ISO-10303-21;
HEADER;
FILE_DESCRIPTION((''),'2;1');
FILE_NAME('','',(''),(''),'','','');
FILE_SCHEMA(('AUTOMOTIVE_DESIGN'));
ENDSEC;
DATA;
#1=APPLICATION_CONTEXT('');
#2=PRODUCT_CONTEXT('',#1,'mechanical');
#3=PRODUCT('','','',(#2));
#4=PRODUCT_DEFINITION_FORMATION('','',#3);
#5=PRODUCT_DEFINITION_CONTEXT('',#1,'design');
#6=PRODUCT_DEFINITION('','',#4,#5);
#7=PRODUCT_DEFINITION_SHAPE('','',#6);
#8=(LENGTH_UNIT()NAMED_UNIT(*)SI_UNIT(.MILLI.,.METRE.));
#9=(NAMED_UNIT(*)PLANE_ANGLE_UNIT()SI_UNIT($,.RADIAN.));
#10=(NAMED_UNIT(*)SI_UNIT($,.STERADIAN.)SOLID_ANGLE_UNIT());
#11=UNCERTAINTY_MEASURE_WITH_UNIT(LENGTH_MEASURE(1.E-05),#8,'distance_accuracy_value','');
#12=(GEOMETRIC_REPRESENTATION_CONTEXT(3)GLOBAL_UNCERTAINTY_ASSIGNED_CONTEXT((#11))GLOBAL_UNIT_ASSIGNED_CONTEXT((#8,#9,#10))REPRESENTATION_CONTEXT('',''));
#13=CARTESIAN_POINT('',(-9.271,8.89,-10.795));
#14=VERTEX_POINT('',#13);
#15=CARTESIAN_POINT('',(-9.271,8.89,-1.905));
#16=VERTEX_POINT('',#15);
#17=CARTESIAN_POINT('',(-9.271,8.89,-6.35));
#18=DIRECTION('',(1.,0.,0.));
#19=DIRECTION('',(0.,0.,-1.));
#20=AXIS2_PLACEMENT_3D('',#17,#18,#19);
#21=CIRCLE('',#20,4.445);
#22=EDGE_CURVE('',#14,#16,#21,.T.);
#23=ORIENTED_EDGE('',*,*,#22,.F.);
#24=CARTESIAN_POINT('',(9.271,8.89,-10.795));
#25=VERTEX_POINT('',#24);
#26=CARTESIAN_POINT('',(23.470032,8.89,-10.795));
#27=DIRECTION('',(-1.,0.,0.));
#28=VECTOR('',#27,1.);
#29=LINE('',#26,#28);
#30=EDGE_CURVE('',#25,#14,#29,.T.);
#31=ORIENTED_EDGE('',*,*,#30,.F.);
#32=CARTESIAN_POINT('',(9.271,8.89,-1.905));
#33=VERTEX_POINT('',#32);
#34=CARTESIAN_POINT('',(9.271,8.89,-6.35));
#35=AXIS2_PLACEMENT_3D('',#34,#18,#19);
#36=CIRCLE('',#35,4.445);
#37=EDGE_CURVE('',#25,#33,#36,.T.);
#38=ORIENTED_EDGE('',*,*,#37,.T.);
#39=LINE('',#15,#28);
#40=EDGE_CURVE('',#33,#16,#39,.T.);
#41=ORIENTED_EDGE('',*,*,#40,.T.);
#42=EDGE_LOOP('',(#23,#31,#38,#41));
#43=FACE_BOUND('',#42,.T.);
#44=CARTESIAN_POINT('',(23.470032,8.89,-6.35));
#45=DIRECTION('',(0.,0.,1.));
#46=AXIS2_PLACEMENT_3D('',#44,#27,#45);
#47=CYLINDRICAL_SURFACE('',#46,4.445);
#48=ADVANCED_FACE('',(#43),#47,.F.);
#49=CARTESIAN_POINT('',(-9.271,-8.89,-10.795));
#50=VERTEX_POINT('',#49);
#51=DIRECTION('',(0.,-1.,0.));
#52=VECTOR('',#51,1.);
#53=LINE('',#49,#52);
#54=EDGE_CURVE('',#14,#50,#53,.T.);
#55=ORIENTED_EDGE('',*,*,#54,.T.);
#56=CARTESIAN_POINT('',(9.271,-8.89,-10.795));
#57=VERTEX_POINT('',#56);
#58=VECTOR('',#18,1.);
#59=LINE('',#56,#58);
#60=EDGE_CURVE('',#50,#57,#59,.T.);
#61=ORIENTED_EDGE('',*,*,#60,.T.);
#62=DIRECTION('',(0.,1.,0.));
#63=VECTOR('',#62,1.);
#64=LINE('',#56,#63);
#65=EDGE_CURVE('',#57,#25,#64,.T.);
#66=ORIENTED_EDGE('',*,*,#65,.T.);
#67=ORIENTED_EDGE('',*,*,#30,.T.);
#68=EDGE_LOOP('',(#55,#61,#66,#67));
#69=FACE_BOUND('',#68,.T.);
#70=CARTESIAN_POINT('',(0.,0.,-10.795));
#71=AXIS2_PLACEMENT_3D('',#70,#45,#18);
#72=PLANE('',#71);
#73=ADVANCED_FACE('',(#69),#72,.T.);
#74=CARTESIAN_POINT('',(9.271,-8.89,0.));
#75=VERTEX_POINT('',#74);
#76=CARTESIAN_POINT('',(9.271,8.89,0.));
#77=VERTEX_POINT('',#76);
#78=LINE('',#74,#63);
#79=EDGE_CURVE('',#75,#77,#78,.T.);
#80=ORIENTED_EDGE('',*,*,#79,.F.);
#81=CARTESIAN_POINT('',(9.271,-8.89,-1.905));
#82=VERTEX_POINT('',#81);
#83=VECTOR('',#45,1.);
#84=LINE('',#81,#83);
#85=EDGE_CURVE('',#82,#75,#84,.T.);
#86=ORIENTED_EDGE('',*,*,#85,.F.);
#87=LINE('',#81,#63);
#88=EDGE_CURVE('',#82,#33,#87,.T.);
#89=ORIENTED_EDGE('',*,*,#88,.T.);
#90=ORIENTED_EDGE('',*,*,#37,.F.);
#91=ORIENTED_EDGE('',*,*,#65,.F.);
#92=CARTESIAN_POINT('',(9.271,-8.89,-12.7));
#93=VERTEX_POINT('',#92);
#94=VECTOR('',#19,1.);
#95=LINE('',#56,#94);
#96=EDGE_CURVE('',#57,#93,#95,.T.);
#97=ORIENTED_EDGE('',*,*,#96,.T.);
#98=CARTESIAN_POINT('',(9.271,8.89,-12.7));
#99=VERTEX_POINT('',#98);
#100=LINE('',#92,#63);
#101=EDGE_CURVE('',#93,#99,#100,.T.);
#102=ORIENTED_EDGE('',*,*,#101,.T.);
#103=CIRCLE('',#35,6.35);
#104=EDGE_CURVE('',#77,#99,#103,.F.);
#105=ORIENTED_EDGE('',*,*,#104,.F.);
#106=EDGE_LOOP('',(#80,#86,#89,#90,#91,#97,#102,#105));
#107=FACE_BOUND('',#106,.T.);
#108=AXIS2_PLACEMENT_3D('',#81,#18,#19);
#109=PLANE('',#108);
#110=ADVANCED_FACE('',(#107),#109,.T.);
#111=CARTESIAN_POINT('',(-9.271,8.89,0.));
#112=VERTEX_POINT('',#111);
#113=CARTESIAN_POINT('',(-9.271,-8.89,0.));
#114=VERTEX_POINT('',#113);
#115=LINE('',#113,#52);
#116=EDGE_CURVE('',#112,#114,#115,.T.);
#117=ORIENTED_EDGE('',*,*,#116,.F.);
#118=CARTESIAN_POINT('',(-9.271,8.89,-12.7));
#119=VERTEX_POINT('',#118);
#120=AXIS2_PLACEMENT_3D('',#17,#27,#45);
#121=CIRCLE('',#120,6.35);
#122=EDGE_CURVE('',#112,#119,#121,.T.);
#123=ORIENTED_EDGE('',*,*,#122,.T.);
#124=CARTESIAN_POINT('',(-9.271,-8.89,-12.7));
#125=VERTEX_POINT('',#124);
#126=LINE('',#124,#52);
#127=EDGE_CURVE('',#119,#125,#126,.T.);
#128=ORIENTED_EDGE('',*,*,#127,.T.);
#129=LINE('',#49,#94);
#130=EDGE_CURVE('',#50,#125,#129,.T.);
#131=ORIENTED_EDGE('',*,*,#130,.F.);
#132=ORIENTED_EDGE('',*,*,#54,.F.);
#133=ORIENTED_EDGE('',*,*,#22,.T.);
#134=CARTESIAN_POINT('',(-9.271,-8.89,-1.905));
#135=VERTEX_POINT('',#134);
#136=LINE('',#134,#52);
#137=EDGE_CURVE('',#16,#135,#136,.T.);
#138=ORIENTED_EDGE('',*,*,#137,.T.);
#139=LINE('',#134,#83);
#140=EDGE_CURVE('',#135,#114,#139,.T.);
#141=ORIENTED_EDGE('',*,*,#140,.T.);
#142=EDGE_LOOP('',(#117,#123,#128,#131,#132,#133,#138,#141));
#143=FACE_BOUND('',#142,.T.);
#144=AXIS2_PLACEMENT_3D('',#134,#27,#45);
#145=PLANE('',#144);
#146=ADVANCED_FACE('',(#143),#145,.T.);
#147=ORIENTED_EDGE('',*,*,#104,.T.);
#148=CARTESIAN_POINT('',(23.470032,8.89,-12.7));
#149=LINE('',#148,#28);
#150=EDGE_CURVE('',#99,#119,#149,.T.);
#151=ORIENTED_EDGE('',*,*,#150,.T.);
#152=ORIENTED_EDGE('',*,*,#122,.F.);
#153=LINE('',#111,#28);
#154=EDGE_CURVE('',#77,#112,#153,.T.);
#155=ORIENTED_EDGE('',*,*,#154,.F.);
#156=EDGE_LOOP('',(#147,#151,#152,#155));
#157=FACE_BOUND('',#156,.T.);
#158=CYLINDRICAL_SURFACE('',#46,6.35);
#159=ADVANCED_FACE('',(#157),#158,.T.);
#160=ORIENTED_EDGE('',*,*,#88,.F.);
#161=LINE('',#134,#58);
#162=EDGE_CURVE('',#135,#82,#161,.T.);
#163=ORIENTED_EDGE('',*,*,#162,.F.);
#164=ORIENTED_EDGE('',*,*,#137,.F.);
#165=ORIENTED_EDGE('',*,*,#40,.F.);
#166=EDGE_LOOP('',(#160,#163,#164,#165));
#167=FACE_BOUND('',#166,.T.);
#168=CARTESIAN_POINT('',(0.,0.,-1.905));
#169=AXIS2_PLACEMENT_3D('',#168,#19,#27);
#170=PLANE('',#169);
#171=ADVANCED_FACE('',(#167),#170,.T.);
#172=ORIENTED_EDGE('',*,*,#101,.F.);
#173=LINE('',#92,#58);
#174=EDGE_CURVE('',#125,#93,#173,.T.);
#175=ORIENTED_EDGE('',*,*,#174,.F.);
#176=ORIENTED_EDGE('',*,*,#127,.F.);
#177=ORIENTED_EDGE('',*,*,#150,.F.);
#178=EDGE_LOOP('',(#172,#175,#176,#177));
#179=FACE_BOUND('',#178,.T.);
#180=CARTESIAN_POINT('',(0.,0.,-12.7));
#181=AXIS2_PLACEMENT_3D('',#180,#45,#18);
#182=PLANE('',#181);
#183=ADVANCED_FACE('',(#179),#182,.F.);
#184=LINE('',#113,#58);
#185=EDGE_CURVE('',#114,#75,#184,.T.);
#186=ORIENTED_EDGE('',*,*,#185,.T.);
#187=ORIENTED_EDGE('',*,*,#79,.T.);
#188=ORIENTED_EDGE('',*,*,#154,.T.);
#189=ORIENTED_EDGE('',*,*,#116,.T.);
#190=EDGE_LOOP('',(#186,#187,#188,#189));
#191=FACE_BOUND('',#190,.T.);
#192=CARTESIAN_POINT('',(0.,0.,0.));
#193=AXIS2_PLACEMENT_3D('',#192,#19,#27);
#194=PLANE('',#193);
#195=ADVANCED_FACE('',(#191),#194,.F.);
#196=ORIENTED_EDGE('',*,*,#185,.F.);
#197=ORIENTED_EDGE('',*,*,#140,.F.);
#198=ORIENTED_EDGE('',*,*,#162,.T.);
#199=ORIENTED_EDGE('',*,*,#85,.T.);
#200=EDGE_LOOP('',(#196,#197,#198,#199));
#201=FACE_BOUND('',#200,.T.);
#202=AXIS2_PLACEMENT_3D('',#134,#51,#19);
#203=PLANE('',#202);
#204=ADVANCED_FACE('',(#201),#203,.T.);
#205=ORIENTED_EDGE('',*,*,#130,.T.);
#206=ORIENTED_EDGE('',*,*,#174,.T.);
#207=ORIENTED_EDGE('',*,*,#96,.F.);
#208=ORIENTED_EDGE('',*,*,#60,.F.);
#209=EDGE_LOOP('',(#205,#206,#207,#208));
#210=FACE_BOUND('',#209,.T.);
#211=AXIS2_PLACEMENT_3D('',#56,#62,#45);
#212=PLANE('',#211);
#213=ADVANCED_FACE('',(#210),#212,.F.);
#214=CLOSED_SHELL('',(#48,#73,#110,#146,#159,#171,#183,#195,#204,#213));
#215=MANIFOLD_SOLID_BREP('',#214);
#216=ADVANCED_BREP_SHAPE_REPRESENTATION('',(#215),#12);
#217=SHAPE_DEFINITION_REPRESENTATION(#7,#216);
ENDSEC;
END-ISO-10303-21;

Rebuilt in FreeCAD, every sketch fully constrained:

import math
import FreeCAD as App
import Part
import Sketcher

V = App.Vector
Q = App.Units.Quantity


def add_polygon(sketch, points):
    """Adds a closed chain of lines whose ends are joined by coincident constraints."""
    first, n = sketch.GeometryCount, len(points)
    for a, b in zip(points, points[1:] + points[:1]):
        sketch.addGeometry(Part.LineSegment(App.Vector(*a, 0), App.Vector(*b, 0)), False)
    for i in range(n):
        sketch.addConstraint(Sketcher.Constraint("Coincident", first + i, 2, first + (i + 1) % n, 1))

doc = App.newDocument("Part")
params = doc.addObject("Spreadsheet::Sheet", "Params")
for row, (alias, value) in enumerate([
    ("sketch1_height", "0.7 in"),
    ("sketch1_width", "0.73 in"),
    ("pad1_length", "0.075 in"),
    ("sketch2_height", "0.7 in"),
    ("sketch2_width", "0.73 in"),
    ("pad2_length", "0.075 in"),
    ("sketch3_radius", "0.25 in"),
    ("sketch3_radius2", "0.175 in"),
    ("pad3_length", "0.73 in"),
], start=1):
    params.set(f"A{row}", alias)
    params.set(f"B{row}", "=" + value)
    params.setAlias(f"B{row}", alias)

body = doc.addObject("PartDesign::Body", "Body")

# Sketch on XY plane
sketch1 = doc.addObject("Sketcher::SketchObject", "Sketch")
body.addObject(sketch1)
sketch1.AttachmentSupport = (doc.XY_Plane, [""])
sketch1.MapMode = "FlatFace"
add_polygon(sketch1, [(-9.271, 8.89), (-9.271, -8.89), (9.271, -8.89), (9.271, 8.89)])  # lines 0-3
sketch1.addConstraint([
    Sketcher.Constraint("Vertical", 0),
    Sketcher.Constraint("Horizontal", 1),
    Sketcher.Constraint("Vertical", 2),
    Sketcher.Constraint("Horizontal", 3),
    Sketcher.Constraint("Symmetric", 0, 2, 2, 2, -1, 1),
    Sketcher.Constraint("DistanceY", 0, 2, 0, 1, Q("0.7 in")),
    Sketcher.Constraint("DistanceX", 1, 1, 1, 2, Q("0.73 in")),
])
sketch1.setExpression("Constraints[9]", "Params.sketch1_height")
sketch1.setExpression("Constraints[10]", "Params.sketch1_width")
pad1 = doc.addObject("PartDesign::Pad", "Pad")
body.addObject(pad1)
pad1.Profile = sketch1
pad1.setExpression("Length", "Params.pad1_length")
pad1.Reversed = True
body2 = doc.addObject("PartDesign::Body", "Body001")

# Sketch on XY plane
sketch2 = doc.addObject("Sketcher::SketchObject", "Sketch001")
body2.addObject(sketch2)
sketch2.AttachmentSupport = (doc.getObject("XY_Plane001"), [""])
sketch2.MapMode = "FlatFace"
sketch2.AttachmentOffset = App.Placement(V(0, 0, -0.5 * 25.4), App.Rotation())
add_polygon(sketch2, [(-9.271, 8.89), (-9.271, -8.89), (9.271, -8.89), (9.271, 8.89)])  # lines 0-3
sketch2.addConstraint([
    Sketcher.Constraint("Vertical", 0),
    Sketcher.Constraint("Horizontal", 1),
    Sketcher.Constraint("Vertical", 2),
    Sketcher.Constraint("Horizontal", 3),
    Sketcher.Constraint("Symmetric", 0, 2, 2, 2, -1, 1),
    Sketcher.Constraint("DistanceY", 0, 2, 0, 1, Q("0.7 in")),
    Sketcher.Constraint("DistanceX", 1, 1, 1, 2, Q("0.73 in")),
])
sketch2.setExpression("Constraints[9]", "Params.sketch2_height")
sketch2.setExpression("Constraints[10]", "Params.sketch2_width")
pad2 = doc.addObject("PartDesign::Pad", "Pad001")
body2.addObject(pad2)
pad2.Profile = sketch2
pad2.setExpression("Length", "Params.pad2_length")
body.AllowCompound = True
doc.recompute()

boolean = doc.addObject("PartDesign::Boolean", "Boolean")
body.addObject(boolean)
boolean.Type = "Fuse"
boolean.addObjects([body2])

# Sketch on YZ plane
sketch3 = doc.addObject("Sketcher::SketchObject", "Sketch002")
body.addObject(sketch3)
sketch3.AttachmentSupport = (doc.YZ_Plane, [""])
sketch3.MapMode = "FlatFace"
sketch3.AttachmentOffset = App.Placement(V(0, 0, -0.365 * 25.4), App.Rotation())
sketch3.addGeometry([
    Part.LineSegment(V(8.89, -12.7, 0), V(8.89, -10.795, 0)),
    Part.ArcOfCircle(Part.Circle(V(8.89, -6.35, 0), V(0, 0, 1), 4.445), math.radians(-90), math.radians(90)),
    Part.LineSegment(V(8.89, -1.905, 0), V(8.89, 0, 0)),
    Part.ArcOfCircle(Part.Circle(V(8.89, -6.35, 0), V(0, 0, 1), 6.35), math.radians(-90), math.radians(90)),
], False)
sketch3.addConstraint([
    Sketcher.Constraint("Coincident", 0, 2, 1, 1),
    Sketcher.Constraint("Coincident", 1, 2, 2, 1),
    Sketcher.Constraint("Coincident", 2, 2, 3, 2),
    Sketcher.Constraint("Coincident", 3, 1, 0, 1),
    Sketcher.Constraint("Vertical", 0),
    Sketcher.Constraint("Vertical", 2),
    Sketcher.Constraint("Coincident", 3, 3, 1, 3),
    Sketcher.Constraint("PointOnObject", 2, 2, -1),
    Sketcher.Constraint("Vertical", 3, 3, 0, 2),
    Sketcher.Constraint("Vertical", 0, 2, 1, 2),
    Sketcher.Constraint("Radius", 3, Q("0.25 in")),
    Sketcher.Constraint("Radius", 1, Q("0.175 in")),
    Sketcher.Constraint("DistanceX", -1, 1, 1, 3, Q("0.35 in")),
])
sketch3.setExpression("Constraints[10]", "Params.sketch3_radius")
sketch3.setExpression("Constraints[11]", "Params.sketch3_radius2")
pad3 = doc.addObject("PartDesign::Pad", "Pad002")
body.addObject(pad3)
pad3.Profile = sketch3
pad3.setExpression("Length", "Params.pad3_length")

doc.recompute()
